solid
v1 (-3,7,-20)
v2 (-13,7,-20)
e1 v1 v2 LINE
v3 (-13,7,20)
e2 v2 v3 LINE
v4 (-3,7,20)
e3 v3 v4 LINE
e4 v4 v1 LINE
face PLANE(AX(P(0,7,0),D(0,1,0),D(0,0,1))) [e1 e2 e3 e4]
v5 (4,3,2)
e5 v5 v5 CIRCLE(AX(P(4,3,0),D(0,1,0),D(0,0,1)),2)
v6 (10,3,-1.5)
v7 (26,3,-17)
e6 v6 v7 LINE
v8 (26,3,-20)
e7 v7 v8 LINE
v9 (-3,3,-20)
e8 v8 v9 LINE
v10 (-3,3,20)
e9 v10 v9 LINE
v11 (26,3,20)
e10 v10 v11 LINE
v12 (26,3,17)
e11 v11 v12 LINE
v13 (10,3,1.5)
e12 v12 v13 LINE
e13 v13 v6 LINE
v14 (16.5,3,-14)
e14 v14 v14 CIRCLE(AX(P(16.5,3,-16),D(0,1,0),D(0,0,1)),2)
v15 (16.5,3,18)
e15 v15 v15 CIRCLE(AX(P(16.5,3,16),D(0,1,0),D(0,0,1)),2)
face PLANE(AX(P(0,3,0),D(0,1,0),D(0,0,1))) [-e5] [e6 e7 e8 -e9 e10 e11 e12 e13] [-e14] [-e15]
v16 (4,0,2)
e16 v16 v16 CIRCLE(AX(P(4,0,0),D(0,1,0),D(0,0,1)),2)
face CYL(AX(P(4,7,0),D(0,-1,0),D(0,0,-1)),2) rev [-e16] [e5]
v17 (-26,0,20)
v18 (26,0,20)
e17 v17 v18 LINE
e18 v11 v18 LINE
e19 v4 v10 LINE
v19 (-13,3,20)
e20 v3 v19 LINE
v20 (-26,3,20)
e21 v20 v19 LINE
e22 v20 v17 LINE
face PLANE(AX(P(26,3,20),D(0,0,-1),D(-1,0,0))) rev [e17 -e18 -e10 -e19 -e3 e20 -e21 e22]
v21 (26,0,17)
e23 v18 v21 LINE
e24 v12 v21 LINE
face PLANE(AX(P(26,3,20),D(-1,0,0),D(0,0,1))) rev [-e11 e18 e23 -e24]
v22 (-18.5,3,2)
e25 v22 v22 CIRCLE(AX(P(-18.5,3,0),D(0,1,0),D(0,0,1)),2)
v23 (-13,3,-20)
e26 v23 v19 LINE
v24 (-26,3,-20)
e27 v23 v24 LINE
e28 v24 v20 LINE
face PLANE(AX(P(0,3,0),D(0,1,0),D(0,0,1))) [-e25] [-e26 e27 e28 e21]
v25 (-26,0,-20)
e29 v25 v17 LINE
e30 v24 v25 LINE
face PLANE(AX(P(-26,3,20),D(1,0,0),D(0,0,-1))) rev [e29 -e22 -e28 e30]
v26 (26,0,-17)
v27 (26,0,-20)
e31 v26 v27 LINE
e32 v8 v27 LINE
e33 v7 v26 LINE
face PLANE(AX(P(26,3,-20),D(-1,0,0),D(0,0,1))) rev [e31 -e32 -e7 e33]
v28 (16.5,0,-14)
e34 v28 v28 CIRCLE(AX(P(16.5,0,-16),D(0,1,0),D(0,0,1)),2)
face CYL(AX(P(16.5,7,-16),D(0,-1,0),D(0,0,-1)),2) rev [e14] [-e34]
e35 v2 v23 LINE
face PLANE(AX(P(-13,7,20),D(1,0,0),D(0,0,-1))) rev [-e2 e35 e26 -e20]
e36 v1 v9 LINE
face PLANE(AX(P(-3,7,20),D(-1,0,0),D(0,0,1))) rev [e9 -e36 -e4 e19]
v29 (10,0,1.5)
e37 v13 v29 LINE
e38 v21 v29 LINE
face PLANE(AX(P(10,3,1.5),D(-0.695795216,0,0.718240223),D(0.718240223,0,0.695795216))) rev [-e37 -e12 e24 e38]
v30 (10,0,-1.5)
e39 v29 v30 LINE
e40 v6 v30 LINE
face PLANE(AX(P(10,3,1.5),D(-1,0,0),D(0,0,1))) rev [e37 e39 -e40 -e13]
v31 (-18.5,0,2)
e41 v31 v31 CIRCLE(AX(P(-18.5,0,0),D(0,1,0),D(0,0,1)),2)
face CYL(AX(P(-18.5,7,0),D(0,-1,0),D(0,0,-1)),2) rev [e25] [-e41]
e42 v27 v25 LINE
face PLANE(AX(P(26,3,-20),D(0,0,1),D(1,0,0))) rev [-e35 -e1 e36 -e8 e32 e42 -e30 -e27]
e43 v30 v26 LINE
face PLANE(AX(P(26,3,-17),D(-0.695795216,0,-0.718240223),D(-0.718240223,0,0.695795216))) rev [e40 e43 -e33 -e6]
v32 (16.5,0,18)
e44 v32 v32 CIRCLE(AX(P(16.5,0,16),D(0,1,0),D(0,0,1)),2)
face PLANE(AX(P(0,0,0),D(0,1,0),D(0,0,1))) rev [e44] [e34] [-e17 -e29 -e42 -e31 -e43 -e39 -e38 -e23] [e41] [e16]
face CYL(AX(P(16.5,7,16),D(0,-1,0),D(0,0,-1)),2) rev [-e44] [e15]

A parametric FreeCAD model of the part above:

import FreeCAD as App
import Part
import Sketcher

V = App.Vector

doc = App.newDocument("Part")
params = doc.addObject("Spreadsheet::Sheet", "Params")
for row, (alias, value) in enumerate([
    ("sketch1_width", "52 mm"),
    ("sketch1_height", "3 mm"),
    ("sketch1_height2", "40 mm"),
    ("pad1_length", "3 mm"),
    ("sketch2_width", "10 mm"),
    ("sketch2_height", "40 mm"),
    ("pad2_length", "4 mm"),
    ("sketch3_diameter", "4 mm"),
], start=1):
    params.set(f"A{row}", alias)
    params.set(f"B{row}", "=" + value)
    params.setAlias(f"B{row}", alias)

body = doc.addObject("PartDesign::Body", "Body")

# Sketch on XZ plane
sketch1 = doc.addObject("Sketcher::SketchObject", "Sketch")
body.addObject(sketch1)
sketch1.AttachmentSupport = (doc.XZ_Plane, [""])
sketch1.MapMode = "FlatFace"
sketch1.addGeometry(Part.LineSegment(V(26, 20, 0), V(26, 17, 0)), False)
sketch1.addGeometry(Part.LineSegment(V(26, 17, 0), V(10, 1.5, 0)), False)
sketch1.addGeometry(Part.LineSegment(V(10, 1.5, 0), V(10, -1.5, 0)), False)
sketch1.addGeometry(Part.LineSegment(V(10, -1.5, 0), V(26, -17, 0)), False)
sketch1.addGeometry(Part.LineSegment(V(26, -17, 0), V(26, -20, 0)), False)
sketch1.addGeometry(Part.LineSegment(V(26, -20, 0), V(-26, -20, 0)), False)
sketch1.addGeometry(Part.LineSegment(V(-26, -20, 0), V(-26, 20, 0)), False)
sketch1.addGeometry(Part.LineSegment(V(-26, 20, 0), V(26, 20, 0)), False)
sketch1.addConstraint(Sketcher.Constraint("Coincident", 0, 2, 1, 1))
sketch1.addConstraint(Sketcher.Constraint("Coincident", 1, 2, 2, 1))
sketch1.addConstraint(Sketcher.Constraint("Coincident", 2, 2, 3, 1))
sketch1.addConstraint(Sketcher.Constraint("Coincident", 3, 2, 4, 1))
sketch1.addConstraint(Sketcher.Constraint("Coincident", 4, 2, 5, 1))
sketch1.addConstraint(Sketcher.Constraint("Coincident", 5, 2, 6, 1))
sketch1.addConstraint(Sketcher.Constraint("Coincident", 6, 2, 7, 1))
sketch1.addConstraint(Sketcher.Constraint("Coincident", 7, 2, 0, 1))
sketch1.addConstraint(Sketcher.Constraint("Vertical", 0))
sketch1.addConstraint(Sketcher.Constraint("Vertical", 2))
sketch1.addConstraint(Sketcher.Constraint("Vertical", 4))
sketch1.addConstraint(Sketcher.Constraint("Horizontal", 5))
sketch1.addConstraint(Sketcher.Constraint("Vertical", 6))
sketch1.addConstraint(Sketcher.Constraint("Horizontal", 7))
sketch1.addConstraint(Sketcher.Constraint("Symmetric", 4, 2, 6, 2, -1, 1))
sketch1.addConstraint(Sketcher.Constraint("Symmetric", 0, 2, 3, 2, -1))
sketch1.addConstraint(Sketcher.Constraint("Equal", 0, 2))
sketch1.addConstraint(Sketcher.Constraint("Equal", 1, 3))
sketch1.addConstraint(Sketcher.Constraint("DistanceX", 5, 2, 5, 1, 52.0))
sketch1.addConstraint(Sketcher.Constraint("DistanceY", 0, 2, 0, 1, 3.0))
sketch1.addConstraint(Sketcher.Constraint("DistanceY", 6, 1, 6, 2, 40.0))
sketch1.addConstraint(Sketcher.Constraint("DistanceX", -1, 1, 1, 2, 10.0))
sketch1.setExpression("Constraints[18]", "Params.sketch1_width")
sketch1.setExpression("Constraints[19]", "Params.sketch1_height")
sketch1.setExpression("Constraints[20]", "Params.sketch1_height2")
pad1 = doc.addObject("PartDesign::Pad", "Pad")
body.addObject(pad1)
pad1.Profile = sketch1
pad1.setExpression("Length", "Params.pad1_length")
pad1.Reversed = True

# Sketch on XZ plane
sketch2 = doc.addObject("Sketcher::SketchObject", "Sketch001")
body.addObject(sketch2)
sketch2.AttachmentSupport = (doc.XZ_Plane, [""])
sketch2.MapMode = "FlatFace"
sketch2.AttachmentOffset = App.Placement(V(0, 0, -3), App.Rotation())
sketch2.addGeometry(Part.LineSegment(V(-13, -20, 0), V(-13, 20, 0)), False)
sketch2.addGeometry(Part.LineSegment(V(-13, 20, 0), V(-3, 20, 0)), False)
sketch2.addGeometry(Part.LineSegment(V(-3, 20, 0), V(-3, -20, 0)), False)
sketch2.addGeometry(Part.LineSegment(V(-3, -20, 0), V(-13, -20, 0)), False)
sketch2.addConstraint(Sketcher.Constraint("Coincident", 0, 2, 1, 1))
sketch2.addConstraint(Sketcher.Constraint("Coincident", 1, 2, 2, 1))
sketch2.addConstraint(Sketcher.Constraint("Coincident", 2, 2, 3, 1))
sketch2.addConstraint(Sketcher.Constraint("Coincident", 3, 2, 0, 1))
sketch2.addConstraint(Sketcher.Constraint("Vertical", 0))
sketch2.addConstraint(Sketcher.Constraint("Horizontal", 1))
sketch2.addConstraint(Sketcher.Constraint("Vertical", 2))
sketch2.addConstraint(Sketcher.Constraint("Horizontal", 3))
sketch2.addConstraint(Sketcher.Constraint("DistanceX", 1, 1, 1, 2, 10.0))
sketch2.addConstraint(Sketcher.Constraint("DistanceY", 0, 1, 0, 2, 40.0))
sketch2.addConstraint(Sketcher.Constraint("DistanceX", 0, 2, -1, 1, 13.0))
sketch2.addConstraint(Sketcher.Constraint("DistanceY", -1, 1, 0, 2, 20.0))
sketch2.setExpression("Constraints[8]", "Params.sketch2_width")
sketch2.setExpression("Constraints[9]", "Params.sketch2_height")
pad2 = doc.addObject("PartDesign::Pad", "Pad001")
body.addObject(pad2)
pad2.Profile = sketch2
pad2.setExpression("Length", "Params.pad2_length")
pad2.Reversed = True

# Sketch on XZ plane
sketch3 = doc.addObject("Sketcher::SketchObject", "Sketch002")
body.addObject(sketch3)
sketch3.AttachmentSupport = (doc.XZ_Plane, [""])
sketch3.MapMode = "FlatFace"
sketch3.addGeometry(Part.Circle(V(4, 0, 0), V(0, 0, 1), 2), False)
sketch3.addGeometry(Part.Circle(V(16.5, -16, 0), V(0, 0, 1), 2), False)
sketch3.addGeometry(Part.Circle(V(16.5, 16, 0), V(0, 0, 1), 2), False)
sketch3.addGeometry(Part.Circle(V(-18.5, 0, 0), V(0, 0, 1), 2), False)
sketch3.addConstraint(Sketcher.Constraint("Equal", 0, 1))
sketch3.addConstraint(Sketcher.Constraint("Equal", 1, 2))
sketch3.addConstraint(Sketcher.Constraint("Equal", 2, 3))
sketch3.addConstraint(Sketcher.Constraint("Symmetric", 1, 3, 2, 3, -1))
sketch3.addConstraint(Sketcher.Constraint("PointOnObject", 0, 3, -1))
sketch3.addConstraint(Sketcher.Constraint("PointOnObject", 3, 3, -1))
sketch3.addConstraint(Sketcher.Constraint("Diameter", 0, 4.0))
sketch3.addConstraint(Sketcher.Constraint("DistanceX", -1, 1, 0, 3, 4.0))
sketch3.addConstraint(Sketcher.Constraint("DistanceY", 1, 3, -1, 1, 16.0))
sketch3.addConstraint(Sketcher.Constraint("DistanceX", 3, 3, 1, 3, 35.0))
sketch3.addConstraint(Sketcher.Constraint("DistanceX", -1, 1, 1, 3, 16.5))
sketch3.setExpression("Constraints[6]", "Params.sketch3_diameter")
pocket1 = doc.addObject("PartDesign::Pocket", "Pocket")
body.addObject(pocket1)
pocket1.Profile = sketch3
pocket1.Type = "ThroughAll"
pocket1.Midplane = True

doc.recompute()
